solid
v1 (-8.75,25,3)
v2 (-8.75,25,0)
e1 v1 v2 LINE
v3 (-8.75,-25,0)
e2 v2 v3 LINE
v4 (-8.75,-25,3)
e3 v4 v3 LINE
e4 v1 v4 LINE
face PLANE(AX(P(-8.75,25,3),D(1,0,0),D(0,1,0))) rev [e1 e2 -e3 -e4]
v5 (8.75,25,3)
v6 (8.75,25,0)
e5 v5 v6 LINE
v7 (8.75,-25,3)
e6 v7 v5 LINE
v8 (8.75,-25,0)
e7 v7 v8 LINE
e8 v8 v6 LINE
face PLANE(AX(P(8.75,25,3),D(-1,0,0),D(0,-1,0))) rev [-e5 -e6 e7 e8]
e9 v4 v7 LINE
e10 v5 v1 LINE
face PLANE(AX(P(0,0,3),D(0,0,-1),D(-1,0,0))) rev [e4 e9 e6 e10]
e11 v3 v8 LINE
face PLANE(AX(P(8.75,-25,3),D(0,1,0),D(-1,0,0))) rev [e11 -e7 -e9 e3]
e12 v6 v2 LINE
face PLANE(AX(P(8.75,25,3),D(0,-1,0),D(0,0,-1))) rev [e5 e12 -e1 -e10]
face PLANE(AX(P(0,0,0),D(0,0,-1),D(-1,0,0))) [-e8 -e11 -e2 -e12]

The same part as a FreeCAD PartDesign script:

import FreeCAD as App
import Part
import Sketcher
from FreeCAD import Vector
Q = App.Units.Quantity

doc = App.newDocument("Part")
params = doc.addObject("Spreadsheet::Sheet", "Params")
for row, (alias, value) in enumerate([
    ("sketch1_height", "50 mm"),
    ("sketch1_width", "17.5 mm"),
    ("pad1_length", "3 mm"),
], start=1):
    params.set(f"A{row}", alias)
    params.set(f"B{row}", "=" + value)
    params.setAlias(f"B{row}", alias)

body = doc.addObject("PartDesign::Body", "Body")

sketch1 = doc.addObject("Sketcher::SketchObject", "Sketch")
body.addObject(sketch1)
sketch1.AttachmentSupport = (doc.XY_Plane, [""])
sketch1.MapMode = "FlatFace"
sketch1.addGeometry([
    Part.LineSegment(Vector(-9, 25, 0), Vector(-9, -25, 0)),
    Part.LineSegment(Vector(-9, -25, 0), Vector(9, -25, 0)),
    Part.LineSegment(Vector(9, -25, 0), Vector(9, 25, 0)),
    Part.LineSegment(Vector(9, 25, 0), Vector(-9, 25, 0)),
], False)
sketch1.addConstraint([
    Sketcher.Constraint("Coincident", 0, 2, 1, 1),
    Sketcher.Constraint("Coincident", 1, 2, 2, 1),
    Sketcher.Constraint("Coincident", 2, 2, 3, 1),
    Sketcher.Constraint("Coincident", 3, 2, 0, 1),
    Sketcher.Constraint("Vertical", 0),
    Sketcher.Constraint("Horizontal", 1),
    Sketcher.Constraint("Vertical", 2),
    Sketcher.Constraint("Horizontal", 3),
    Sketcher.Constraint("Symmetric", 0, 2, 2, 2, -1, 1),
    Sketcher.Constraint("DistanceY", 0, 2, 0, 1, Q("50 mm")),
    Sketcher.Constraint("DistanceX", 1, 1, 1, 2, Q("17.5 mm")),
])
sketch1.setExpression("Constraints[9]", "Params.sketch1_height")
sketch1.setExpression("Constraints[10]", "Params.sketch1_width")
pad1 = doc.addObject("PartDesign::Pad", "Pad")
body.addObject(pad1)
pad1.Profile = sketch1
pad1.setExpression("Length", "Params.pad1_length")

doc.recompute()
